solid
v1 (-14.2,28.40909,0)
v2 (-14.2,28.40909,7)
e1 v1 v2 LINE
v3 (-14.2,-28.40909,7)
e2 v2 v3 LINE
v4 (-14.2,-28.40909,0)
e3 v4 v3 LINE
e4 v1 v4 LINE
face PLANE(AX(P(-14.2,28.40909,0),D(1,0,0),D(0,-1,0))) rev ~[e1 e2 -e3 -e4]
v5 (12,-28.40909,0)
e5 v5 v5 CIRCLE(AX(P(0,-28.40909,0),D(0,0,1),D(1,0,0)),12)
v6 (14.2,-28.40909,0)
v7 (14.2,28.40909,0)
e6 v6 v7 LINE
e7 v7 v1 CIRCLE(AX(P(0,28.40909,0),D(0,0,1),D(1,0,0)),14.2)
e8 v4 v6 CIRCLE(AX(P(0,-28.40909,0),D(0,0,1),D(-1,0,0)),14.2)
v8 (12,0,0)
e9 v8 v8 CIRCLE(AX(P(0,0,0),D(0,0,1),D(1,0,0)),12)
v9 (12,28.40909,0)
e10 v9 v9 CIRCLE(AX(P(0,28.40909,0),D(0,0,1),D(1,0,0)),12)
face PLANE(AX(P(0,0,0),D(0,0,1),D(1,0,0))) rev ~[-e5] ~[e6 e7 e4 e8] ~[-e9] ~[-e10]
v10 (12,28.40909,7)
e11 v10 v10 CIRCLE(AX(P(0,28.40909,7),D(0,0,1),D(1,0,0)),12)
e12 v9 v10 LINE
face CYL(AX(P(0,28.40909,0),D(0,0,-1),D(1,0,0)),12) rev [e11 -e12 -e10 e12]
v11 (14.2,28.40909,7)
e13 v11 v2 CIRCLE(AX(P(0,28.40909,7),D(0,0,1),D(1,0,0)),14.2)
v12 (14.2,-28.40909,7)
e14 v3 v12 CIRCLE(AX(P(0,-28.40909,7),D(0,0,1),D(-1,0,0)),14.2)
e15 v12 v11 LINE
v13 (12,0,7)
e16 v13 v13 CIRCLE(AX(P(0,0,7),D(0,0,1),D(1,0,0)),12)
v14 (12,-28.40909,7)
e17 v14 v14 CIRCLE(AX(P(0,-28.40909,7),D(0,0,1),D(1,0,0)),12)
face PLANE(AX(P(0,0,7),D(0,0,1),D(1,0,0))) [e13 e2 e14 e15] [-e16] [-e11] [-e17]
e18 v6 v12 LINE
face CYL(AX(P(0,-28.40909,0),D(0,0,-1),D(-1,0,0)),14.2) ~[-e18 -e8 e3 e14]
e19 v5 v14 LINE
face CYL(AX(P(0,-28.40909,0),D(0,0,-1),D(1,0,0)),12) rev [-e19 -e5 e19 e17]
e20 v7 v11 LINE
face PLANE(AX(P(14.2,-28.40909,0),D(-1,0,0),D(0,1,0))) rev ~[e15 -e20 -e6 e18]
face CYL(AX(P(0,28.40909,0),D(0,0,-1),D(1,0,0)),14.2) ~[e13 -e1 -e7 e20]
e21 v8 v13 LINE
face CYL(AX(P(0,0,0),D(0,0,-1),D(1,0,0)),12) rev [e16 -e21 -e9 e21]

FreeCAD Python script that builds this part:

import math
import FreeCAD as App
import Part
import Sketcher

V = App.Vector
Q = App.Units.Quantity

doc = App.newDocument("Part")
body = doc.addObject("PartDesign::Body", "Body")

sketch1 = body.newObject("Sketcher::SketchObject", "Sketch")
sketch1.AttachmentSupport = (doc.getObject("XY_Plane"), [""])
sketch1.MapMode = "FlatFace"
sketch1.addGeometry([
    Part.LineSegment(V(14.2, -28.40909, 0), V(14.2, 28.40909, 0)),
    Part.ArcOfCircle(Part.Circle(V(0, 28.40909, 0), V(0, 0, 1), 14.2), math.radians(0), math.radians(180)),
    Part.LineSegment(V(-14.2, 28.40909, 0), V(-14.2, -28.40909, 0)),
    Part.ArcOfCircle(Part.Circle(V(0, -28.40909, 0), V(0, 0, 1), 14.2), math.radians(180), math.radians(360)),
    Part.Circle(V(0, -28.40909, 0), V(0, 0, 1), 12),
    Part.Circle(V(0, 0, 0), V(0, 0, 1), 12),
    Part.Circle(V(0, 28.40909, 0), V(0, 0, 1), 12),
], False)
sketch1.addConstraint([
    Sketcher.Constraint("Tangent", 0, 2, 1, 1),
    Sketcher.Constraint("Tangent", 1, 2, 2, 1),
    Sketcher.Constraint("Tangent", 2, 2, 3, 1),
    Sketcher.Constraint("Tangent", 3, 2, 0, 1),
    Sketcher.Constraint("Vertical", 0),
    Sketcher.Constraint("Vertical", 2),
    Sketcher.Constraint("Coincident", 5, 3, -1, 1),
    Sketcher.Constraint("Coincident", 4, 3, 3, 3),
    Sketcher.Constraint("Coincident", 6, 3, 1, 3),
    Sketcher.Constraint("Equal", 4, 5),
    Sketcher.Constraint("Equal", 5, 6),
    Sketcher.Constraint("Symmetric", 1, 3, 3, 3, -1, 1),
    Sketcher.Constraint("Diameter", 4, Q("24 mm")),
    Sketcher.Constraint("Radius", 1, Q("14.2 mm")),
    Sketcher.Constraint("DistanceY", 0, 1, 0, 2, Q("56.81818 mm")),
])
pad1 = body.newObject("PartDesign::Pad", "Pad")
pad1.Profile = sketch1
pad1.Length = 7

doc.recompute()
